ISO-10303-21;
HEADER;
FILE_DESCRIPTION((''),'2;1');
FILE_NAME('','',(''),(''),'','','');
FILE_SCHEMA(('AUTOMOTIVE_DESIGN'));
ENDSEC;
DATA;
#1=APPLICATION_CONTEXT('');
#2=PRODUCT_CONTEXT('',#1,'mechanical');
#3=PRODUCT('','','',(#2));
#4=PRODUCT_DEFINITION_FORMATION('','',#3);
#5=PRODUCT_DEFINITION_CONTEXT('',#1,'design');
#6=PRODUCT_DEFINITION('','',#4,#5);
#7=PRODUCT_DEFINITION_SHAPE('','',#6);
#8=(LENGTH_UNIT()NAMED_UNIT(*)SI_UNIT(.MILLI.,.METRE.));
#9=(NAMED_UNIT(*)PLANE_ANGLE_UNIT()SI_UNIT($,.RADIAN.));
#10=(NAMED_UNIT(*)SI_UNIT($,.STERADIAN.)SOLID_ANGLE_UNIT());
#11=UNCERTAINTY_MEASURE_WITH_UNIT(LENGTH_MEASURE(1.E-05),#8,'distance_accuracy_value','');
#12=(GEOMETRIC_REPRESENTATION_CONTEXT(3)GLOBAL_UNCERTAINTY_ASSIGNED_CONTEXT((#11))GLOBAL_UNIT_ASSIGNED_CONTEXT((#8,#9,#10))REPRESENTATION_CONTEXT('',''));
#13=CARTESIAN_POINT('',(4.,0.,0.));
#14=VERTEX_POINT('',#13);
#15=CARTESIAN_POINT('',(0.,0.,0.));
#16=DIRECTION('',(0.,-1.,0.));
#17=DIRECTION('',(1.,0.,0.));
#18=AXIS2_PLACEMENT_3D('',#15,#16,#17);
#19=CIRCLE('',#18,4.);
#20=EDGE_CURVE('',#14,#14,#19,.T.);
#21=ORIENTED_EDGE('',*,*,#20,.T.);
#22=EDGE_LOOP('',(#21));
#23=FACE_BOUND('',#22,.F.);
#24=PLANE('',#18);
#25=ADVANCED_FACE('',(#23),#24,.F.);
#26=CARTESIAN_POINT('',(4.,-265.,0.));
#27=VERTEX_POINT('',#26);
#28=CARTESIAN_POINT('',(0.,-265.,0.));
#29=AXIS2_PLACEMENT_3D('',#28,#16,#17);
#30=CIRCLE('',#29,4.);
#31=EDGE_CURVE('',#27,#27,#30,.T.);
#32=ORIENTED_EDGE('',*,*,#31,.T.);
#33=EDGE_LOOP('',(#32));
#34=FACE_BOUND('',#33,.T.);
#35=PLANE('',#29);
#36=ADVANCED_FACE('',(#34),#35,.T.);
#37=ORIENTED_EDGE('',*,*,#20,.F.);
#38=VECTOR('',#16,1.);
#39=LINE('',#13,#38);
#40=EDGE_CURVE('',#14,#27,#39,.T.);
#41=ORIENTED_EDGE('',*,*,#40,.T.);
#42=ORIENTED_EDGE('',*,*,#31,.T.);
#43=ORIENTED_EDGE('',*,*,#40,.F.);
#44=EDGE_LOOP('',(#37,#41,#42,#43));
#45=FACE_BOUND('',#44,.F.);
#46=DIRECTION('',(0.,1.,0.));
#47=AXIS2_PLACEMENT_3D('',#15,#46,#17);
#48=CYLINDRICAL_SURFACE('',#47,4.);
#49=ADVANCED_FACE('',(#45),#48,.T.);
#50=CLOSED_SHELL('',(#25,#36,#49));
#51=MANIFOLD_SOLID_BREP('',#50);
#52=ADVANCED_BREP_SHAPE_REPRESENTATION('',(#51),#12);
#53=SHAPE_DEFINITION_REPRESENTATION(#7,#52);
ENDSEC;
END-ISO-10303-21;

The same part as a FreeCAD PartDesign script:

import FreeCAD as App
import Part
import Sketcher

doc = App.newDocument("Part")
body = doc.addObject("PartDesign::Body", "Body")

# Sketch on XZ plane
sketch1 = body.newObject("Sketcher::SketchObject", "Sketch")
sketch1.AttachmentSupport = (doc.getObject("XZ_Plane"), [""])
sketch1.MapMode = "FlatFace"
sketch1.addGeometry(Part.Circle(App.Vector(0, 0, 0), App.Vector(0, 0, 1), 4), False)
sketch1.addConstraint([
    Sketcher.Constraint("Coincident", 0, 3, -1, 1),
    Sketcher.Constraint("Diameter", 0, 8.0),
])
pad1 = body.newObject("PartDesign::Pad", "Pad")
pad1.Profile = sketch1
pad1.Length = 265

doc.recompute()
